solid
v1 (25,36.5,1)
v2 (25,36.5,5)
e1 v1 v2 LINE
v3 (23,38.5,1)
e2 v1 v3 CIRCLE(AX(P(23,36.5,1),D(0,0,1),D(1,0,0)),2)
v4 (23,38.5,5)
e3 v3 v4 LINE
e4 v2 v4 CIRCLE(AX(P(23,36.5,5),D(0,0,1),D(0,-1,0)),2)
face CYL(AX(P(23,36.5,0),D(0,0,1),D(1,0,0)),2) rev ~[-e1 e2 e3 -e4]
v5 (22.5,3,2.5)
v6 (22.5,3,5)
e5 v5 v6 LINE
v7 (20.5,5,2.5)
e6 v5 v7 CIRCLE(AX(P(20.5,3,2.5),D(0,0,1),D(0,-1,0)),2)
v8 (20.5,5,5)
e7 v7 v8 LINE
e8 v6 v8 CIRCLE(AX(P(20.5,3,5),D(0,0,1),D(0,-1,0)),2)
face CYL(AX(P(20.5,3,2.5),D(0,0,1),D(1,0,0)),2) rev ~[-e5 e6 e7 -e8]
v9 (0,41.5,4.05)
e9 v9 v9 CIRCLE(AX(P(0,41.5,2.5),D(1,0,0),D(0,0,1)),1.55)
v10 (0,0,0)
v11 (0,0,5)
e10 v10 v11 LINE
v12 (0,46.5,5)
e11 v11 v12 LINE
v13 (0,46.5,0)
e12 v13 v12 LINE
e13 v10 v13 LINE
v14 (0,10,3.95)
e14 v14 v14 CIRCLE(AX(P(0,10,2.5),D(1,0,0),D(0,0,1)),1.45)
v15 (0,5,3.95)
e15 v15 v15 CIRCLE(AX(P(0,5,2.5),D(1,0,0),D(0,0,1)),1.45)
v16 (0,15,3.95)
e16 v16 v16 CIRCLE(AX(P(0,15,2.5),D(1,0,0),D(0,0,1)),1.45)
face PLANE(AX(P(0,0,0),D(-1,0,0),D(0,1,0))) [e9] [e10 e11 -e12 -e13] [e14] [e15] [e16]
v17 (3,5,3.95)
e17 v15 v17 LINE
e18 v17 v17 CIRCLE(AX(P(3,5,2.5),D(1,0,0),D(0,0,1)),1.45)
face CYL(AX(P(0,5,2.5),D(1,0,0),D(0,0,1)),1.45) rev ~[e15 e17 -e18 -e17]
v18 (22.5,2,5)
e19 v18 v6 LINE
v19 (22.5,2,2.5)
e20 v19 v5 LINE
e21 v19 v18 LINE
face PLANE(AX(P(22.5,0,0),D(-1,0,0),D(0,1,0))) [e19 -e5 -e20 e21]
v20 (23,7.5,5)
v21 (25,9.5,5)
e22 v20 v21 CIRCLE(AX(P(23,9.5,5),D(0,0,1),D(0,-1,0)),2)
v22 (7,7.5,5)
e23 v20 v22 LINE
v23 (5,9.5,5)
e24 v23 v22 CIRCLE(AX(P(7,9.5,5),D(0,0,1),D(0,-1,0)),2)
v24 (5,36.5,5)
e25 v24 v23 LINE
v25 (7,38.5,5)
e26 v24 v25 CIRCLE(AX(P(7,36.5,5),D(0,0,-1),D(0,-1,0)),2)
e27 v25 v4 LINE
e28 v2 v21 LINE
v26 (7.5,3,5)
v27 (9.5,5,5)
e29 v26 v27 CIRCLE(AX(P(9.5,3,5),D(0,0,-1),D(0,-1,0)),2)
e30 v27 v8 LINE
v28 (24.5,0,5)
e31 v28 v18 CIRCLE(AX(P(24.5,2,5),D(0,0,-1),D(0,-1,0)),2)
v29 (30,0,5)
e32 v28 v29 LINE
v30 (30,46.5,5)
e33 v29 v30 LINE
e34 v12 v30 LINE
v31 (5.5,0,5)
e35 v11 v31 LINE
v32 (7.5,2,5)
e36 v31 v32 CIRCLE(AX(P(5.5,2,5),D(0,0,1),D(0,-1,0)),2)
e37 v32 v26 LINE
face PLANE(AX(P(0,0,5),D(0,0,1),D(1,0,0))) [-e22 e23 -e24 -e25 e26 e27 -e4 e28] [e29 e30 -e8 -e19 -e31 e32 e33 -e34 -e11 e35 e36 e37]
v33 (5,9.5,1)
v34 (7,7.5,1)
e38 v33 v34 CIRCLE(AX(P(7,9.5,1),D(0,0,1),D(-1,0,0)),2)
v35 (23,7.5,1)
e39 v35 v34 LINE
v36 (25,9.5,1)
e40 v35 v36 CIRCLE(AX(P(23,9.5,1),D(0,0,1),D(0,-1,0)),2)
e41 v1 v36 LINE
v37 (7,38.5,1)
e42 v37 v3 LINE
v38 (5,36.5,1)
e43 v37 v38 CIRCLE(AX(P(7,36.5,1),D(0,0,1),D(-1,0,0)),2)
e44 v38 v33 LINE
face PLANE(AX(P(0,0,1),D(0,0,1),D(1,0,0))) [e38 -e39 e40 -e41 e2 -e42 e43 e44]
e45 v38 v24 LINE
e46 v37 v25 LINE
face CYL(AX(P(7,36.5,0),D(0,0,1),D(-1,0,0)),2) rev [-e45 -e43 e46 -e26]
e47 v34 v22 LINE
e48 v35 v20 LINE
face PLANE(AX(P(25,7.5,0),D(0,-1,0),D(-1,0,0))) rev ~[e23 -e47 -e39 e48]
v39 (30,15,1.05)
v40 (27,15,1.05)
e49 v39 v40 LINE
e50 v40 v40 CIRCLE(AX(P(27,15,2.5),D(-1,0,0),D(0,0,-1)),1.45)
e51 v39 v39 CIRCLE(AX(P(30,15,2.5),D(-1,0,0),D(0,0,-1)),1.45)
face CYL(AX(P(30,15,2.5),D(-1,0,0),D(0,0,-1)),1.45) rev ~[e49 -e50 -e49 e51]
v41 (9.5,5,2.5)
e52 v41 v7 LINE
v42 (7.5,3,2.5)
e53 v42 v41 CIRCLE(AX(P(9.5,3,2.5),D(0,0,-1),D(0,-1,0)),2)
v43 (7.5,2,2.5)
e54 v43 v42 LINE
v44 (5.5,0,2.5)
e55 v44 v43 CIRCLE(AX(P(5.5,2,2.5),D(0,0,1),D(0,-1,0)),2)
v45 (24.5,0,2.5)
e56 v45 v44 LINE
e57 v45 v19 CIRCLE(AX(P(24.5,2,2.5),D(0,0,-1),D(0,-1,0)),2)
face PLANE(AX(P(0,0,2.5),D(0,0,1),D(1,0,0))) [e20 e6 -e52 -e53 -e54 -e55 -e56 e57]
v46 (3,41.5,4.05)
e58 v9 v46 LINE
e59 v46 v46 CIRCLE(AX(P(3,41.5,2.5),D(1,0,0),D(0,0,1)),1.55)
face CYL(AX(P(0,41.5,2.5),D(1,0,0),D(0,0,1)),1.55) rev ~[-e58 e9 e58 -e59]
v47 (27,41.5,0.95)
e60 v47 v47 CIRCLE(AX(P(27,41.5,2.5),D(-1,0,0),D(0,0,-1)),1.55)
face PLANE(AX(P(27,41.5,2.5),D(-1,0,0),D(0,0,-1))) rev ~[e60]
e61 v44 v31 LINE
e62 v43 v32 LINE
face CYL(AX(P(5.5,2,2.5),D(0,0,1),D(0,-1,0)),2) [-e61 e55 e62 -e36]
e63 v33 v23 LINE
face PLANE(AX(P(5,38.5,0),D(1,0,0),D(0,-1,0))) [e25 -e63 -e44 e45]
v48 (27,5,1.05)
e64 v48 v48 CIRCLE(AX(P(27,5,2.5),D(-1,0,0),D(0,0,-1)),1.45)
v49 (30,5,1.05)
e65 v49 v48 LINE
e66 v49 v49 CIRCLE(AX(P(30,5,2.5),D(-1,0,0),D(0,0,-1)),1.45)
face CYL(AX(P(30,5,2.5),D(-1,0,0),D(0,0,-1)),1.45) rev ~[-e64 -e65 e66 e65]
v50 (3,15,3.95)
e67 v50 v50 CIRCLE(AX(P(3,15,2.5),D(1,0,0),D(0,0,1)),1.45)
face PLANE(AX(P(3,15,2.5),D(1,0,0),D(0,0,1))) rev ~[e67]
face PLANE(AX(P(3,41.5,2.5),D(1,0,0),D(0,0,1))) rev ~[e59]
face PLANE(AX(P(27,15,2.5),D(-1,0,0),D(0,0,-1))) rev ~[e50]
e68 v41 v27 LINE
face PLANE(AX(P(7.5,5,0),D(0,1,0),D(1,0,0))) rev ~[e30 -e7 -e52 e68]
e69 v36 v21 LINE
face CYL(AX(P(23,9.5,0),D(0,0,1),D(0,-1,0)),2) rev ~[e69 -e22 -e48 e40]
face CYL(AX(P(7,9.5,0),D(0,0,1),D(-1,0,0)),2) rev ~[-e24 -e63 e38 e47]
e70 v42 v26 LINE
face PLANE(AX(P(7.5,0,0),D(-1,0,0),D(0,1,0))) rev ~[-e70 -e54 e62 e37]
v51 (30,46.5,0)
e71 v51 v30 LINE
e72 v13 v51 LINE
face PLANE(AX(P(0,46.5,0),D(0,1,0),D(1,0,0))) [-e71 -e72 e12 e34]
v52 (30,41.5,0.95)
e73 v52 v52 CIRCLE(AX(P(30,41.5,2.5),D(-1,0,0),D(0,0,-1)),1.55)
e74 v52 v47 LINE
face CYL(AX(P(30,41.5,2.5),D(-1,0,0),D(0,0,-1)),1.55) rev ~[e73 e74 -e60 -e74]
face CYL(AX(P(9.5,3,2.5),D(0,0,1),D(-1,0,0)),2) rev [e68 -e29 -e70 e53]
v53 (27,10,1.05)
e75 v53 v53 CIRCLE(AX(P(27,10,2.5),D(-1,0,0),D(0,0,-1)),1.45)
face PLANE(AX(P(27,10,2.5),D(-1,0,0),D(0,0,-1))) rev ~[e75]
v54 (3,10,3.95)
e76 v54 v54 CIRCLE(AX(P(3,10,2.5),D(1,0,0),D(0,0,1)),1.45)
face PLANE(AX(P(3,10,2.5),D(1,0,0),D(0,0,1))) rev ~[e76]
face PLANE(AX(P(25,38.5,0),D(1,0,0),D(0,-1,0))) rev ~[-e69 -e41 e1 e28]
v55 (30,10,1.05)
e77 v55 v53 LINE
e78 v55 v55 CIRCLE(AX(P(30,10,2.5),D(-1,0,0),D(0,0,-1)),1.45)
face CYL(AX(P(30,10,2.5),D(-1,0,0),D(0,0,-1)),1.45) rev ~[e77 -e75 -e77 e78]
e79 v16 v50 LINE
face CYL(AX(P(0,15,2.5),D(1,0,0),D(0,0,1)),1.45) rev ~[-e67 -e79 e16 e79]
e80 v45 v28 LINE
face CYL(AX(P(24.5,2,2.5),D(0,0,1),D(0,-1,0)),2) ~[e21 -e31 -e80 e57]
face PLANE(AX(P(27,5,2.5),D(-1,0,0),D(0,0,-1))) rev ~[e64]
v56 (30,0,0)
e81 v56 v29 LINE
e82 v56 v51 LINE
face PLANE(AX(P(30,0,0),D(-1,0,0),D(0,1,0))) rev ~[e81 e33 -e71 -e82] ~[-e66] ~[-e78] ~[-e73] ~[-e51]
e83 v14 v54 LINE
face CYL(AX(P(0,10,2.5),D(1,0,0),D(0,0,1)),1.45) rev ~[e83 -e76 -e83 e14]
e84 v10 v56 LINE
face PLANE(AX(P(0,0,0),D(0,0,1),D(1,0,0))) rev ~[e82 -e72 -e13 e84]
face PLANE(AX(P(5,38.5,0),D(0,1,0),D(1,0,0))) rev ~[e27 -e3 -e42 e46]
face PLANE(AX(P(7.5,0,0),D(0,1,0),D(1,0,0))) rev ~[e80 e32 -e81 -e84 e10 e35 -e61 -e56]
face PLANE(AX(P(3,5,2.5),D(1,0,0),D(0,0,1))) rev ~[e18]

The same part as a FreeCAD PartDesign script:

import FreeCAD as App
import Part
import Sketcher
from FreeCAD import Vector


def edges_at(feature, points):
    """Names of the edges that pass closest to the given points."""
    edges = feature.Shape.Edges
    near = lambda p: min(range(len(edges)), key=lambda i: edges[i].distToShape(Part.Vertex(*p))[0])
    return sorted({f"Edge{near(p) + 1}" for p in points})

doc = App.newDocument("Part")
body = doc.addObject("PartDesign::Body", "Body")

sketch1 = doc.addObject("Sketcher::SketchObject", "Sketch")
body.addObject(sketch1)
sketch1.AttachmentSupport = (doc.XY_Plane, [""])
sketch1.MapMode = "FlatFace"
sketch1.addGeometry([
    Part.LineSegment(Vector(30, 46.5, 0), Vector(0, 46.5, 0)),
    Part.LineSegment(Vector(0, 46.5, 0), Vector(0, 0, 0)),
    Part.LineSegment(Vector(0, 0, 0), Vector(7.5, 0, 0)),
    Part.LineSegment(Vector(7.5, 0, 0), Vector(7.5, 5, 0)),
    Part.LineSegment(Vector(7.5, 5, 0), Vector(22.5, 5, 0)),
    Part.LineSegment(Vector(22.5, 5, 0), Vector(22.5, 0, 0)),
    Part.LineSegment(Vector(22.5, 0, 0), Vector(30, 0, 0)),
    Part.LineSegment(Vector(30, 0, 0), Vector(30, 46.5, 0)),
    Part.LineSegment(Vector(5, 7.5, 0), Vector(5, 38.5, 0)),
    Part.LineSegment(Vector(5, 38.5, 0), Vector(25, 38.5, 0)),
    Part.LineSegment(Vector(25, 38.5, 0), Vector(25, 7.5, 0)),
    Part.LineSegment(Vector(25, 7.5, 0), Vector(5, 7.5, 0)),
], False)
sketch1.addConstraint([
    Sketcher.Constraint("Coincident", 0, 2, 1, 1),
    Sketcher.Constraint("Coincident", 1, 2, 2, 1),
    Sketcher.Constraint("Coincident", 2, 2, 3, 1),
    Sketcher.Constraint("Coincident", 3, 2, 4, 1),
    Sketcher.Constraint("Coincident", 4, 2, 5, 1),
    Sketcher.Constraint("Coincident", 5, 2, 6, 1),
    Sketcher.Constraint("Coincident", 6, 2, 7, 1),
    Sketcher.Constraint("Coincident", 7, 2, 0, 1),
    Sketcher.Constraint("Coincident", 8, 2, 9, 1),
    Sketcher.Constraint("Coincident", 9, 2, 10, 1),
    Sketcher.Constraint("Coincident", 10, 2, 11, 1),
    Sketcher.Constraint("Coincident", 11, 2, 8, 1),
    Sketcher.Constraint("Horizontal", 0),
    Sketcher.Constraint("Vertical", 1),
    Sketcher.Constraint("Horizontal", 2),
    Sketcher.Constraint("Vertical", 3),
    Sketcher.Constraint("Horizontal", 4),
    Sketcher.Constraint("Vertical", 5),
    Sketcher.Constraint("Horizontal", 6),
    Sketcher.Constraint("Vertical", 7),
    Sketcher.Constraint("Vertical", 8),
    Sketcher.Constraint("Horizontal", 9),
    Sketcher.Constraint("Vertical", 10),
    Sketcher.Constraint("Horizontal", 11),
    Sketcher.Constraint("Coincident", 1, 2, -1, 1),
    Sketcher.Constraint("PointOnObject", 5, 2, -1),
    Sketcher.Constraint("Equal", 2, 6),
    Sketcher.Constraint("DistanceX", 0, 2, 0, 1, 30.0),
    Sketcher.Constraint("DistanceX", 4, 1, 4, 2, 15.0),
    Sketcher.Constraint("DistanceY", 3, 1, 3, 2, 5.0),
    Sketcher.Constraint("DistanceY", 1, 2, 1, 1, 46.5),
    Sketcher.Constraint("DistanceX", -1, 1, 8, 2, 5.0),
    Sketcher.Constraint("DistanceY", 8, 2, 0, 2, 8.0),
    Sketcher.Constraint("DistanceX", 9, 2, 7, 2, 5.0),
    Sketcher.Constraint("DistanceY", 4, 2, 10, 2, 2.5),
])
pad1 = doc.addObject("PartDesign::Pad", "Pad")
body.addObject(pad1)
pad1.Profile = sketch1
pad1.Length = 5

sketch2 = doc.addObject("Sketcher::SketchObject", "Sketch001")
body.addObject(sketch2)
sketch2.AttachmentSupport = (doc.YZ_Plane, [""])
sketch2.MapMode = "FlatFace"
sketch2.AttachmentOffset = App.Placement(Vector(0, 0, 30), App.Rotation())
sketch2.addGeometry(Part.Circle(Vector(41.5, 2.5, 0), Vector(0, 0, 1), 1.55), False)
sketch2.addConstraint([
    Sketcher.Constraint("Diameter", 0, 3.1),
    Sketcher.Constraint("DistanceX", -1, 1, 0, 3, 41.5),
    Sketcher.Constraint("DistanceY", -1, 1, 0, 3, 2.5),
])
doc.recompute()
hole = doc.addObject("PartDesign::Hole", "Hole")
body.addObject(hole)
hole.Profile = sketch2
hole.ThreadType = "None"
hole.Diameter = 3.1
hole.DepthType = "Dimension"
hole.Depth = 3
hole.DrillPoint = "Flat"

sketch3 = doc.addObject("Sketcher::SketchObject", "Sketch002")
body.addObject(sketch3)
sketch3.AttachmentSupport = (doc.YZ_Plane, [""])
sketch3.MapMode = "FlatFace"
sketch3.addGeometry(Part.Circle(Vector(41.5, 2.5, 0), Vector(0, 0, 1), 1.55), False)
sketch3.addConstraint([
    Sketcher.Constraint("Diameter", 0, 3.1),
    Sketcher.Constraint("DistanceX", -1, 1, 0, 3, 41.5),
    Sketcher.Constraint("DistanceY", -1, 1, 0, 3, 2.5),
])
doc.recompute()
hole2 = doc.addObject("PartDesign::Hole", "Hole001")
body.addObject(hole2)
hole2.Profile = sketch3
hole2.ThreadType = "None"
hole2.Diameter = 3.1
hole2.DepthType = "Dimension"
hole2.Depth = 3
hole2.DrillPoint = "Flat"
hole2.Reversed = True

sketch4 = doc.addObject("Sketcher::SketchObject", "Sketch003")
body.addObject(sketch4)
sketch4.AttachmentSupport = (doc.YZ_Plane, [""])
sketch4.MapMode = "FlatFace"
sketch4.AttachmentOffset = App.Placement(Vector(0, 0, 30), App.Rotation())
sketch4.addGeometry([
    Part.Circle(Vector(5, 2.5, 0), Vector(0, 0, 1), 1.45),
    Part.Circle(Vector(15, 2.5, 0), Vector(0, 0, 1), 1.45),
    Part.Circle(Vector(10, 2.5, 0), Vector(0, 0, 1), 1.45),
], False)
sketch4.addConstraint([
    Sketcher.Constraint("Equal", 0, 1),
    Sketcher.Constraint("Equal", 1, 2),
    Sketcher.Constraint("Horizontal", 0, 3, 1, 3),
    Sketcher.Constraint("Horizontal", 1, 3, 2, 3),
    Sketcher.Constraint("Diameter", 0, 2.9),
    Sketcher.Constraint("DistanceX", -1, 1, 0, 3, 5.0),
    Sketcher.Constraint("DistanceX", -1, 1, 1, 3, 15.0),
    Sketcher.Constraint("DistanceX", -1, 1, 2, 3, 10.0),
    Sketcher.Constraint("DistanceY", -1, 1, 0, 3, 2.5),
])
doc.recompute()
hole3 = doc.addObject("PartDesign::Hole", "Hole002")
body.addObject(hole3)
hole3.Profile = sketch4
hole3.ThreadType = "None"
hole3.Diameter = 2.9
hole3.DepthType = "Dimension"
hole3.Depth = 3
hole3.DrillPoint = "Flat"

sketch5 = doc.addObject("Sketcher::SketchObject", "Sketch004")
body.addObject(sketch5)
sketch5.AttachmentSupport = (doc.YZ_Plane, [""])
sketch5.MapMode = "FlatFace"
sketch5.addGeometry([
    Part.Circle(Vector(5, 2.5, 0), Vector(0, 0, 1), 1.45),
    Part.Circle(Vector(10, 2.5, 0), Vector(0, 0, 1), 1.45),
    Part.Circle(Vector(15, 2.5, 0), Vector(0, 0, 1), 1.45),
], False)
sketch5.addConstraint([
    Sketcher.Constraint("Equal", 0, 1),
    Sketcher.Constraint("Equal", 1, 2),
    Sketcher.Constraint("Horizontal", 0, 3, 1, 3),
    Sketcher.Constraint("Horizontal", 1, 3, 2, 3),
    Sketcher.Constraint("Diameter", 0, 2.9),
    Sketcher.Constraint("DistanceX", -1, 1, 0, 3, 5.0),
    Sketcher.Constraint("DistanceX", -1, 1, 1, 3, 10.0),
    Sketcher.Constraint("DistanceX", -1, 1, 2, 3, 15.0),
    Sketcher.Constraint("DistanceY", -1, 1, 0, 3, 2.5),
])
doc.recompute()
hole4 = doc.addObject("PartDesign::Hole", "Hole003")
body.addObject(hole4)
hole4.Profile = sketch5
hole4.ThreadType = "None"
hole4.Diameter = 2.9
hole4.DepthType = "Dimension"
hole4.Depth = 3
hole4.DrillPoint = "Flat"
hole4.Reversed = True

sketch6 = doc.addObject("Sketcher::SketchObject", "Sketch005")
body.addObject(sketch6)
sketch6.AttachmentSupport = (doc.XY_Plane, [""])
sketch6.MapMode = "FlatFace"
sketch6.addGeometry([
    Part.LineSegment(Vector(7.5, 5, 0), Vector(7.5, 0, 0)),
    Part.LineSegment(Vector(7.5, 0, 0), Vector(22.5, 0, 0)),
    Part.LineSegment(Vector(22.5, 0, 0), Vector(22.5, 5, 0)),
    Part.LineSegment(Vector(22.5, 5, 0), Vector(7.5, 5, 0)),
], False)
sketch6.addConstraint([
    Sketcher.Constraint("Coincident", 0, 2, 1, 1),
    Sketcher.Constraint("Coincident", 1, 2, 2, 1),
    Sketcher.Constraint("Coincident", 2, 2, 3, 1),
    Sketcher.Constraint("Coincident", 3, 2, 0, 1),
    Sketcher.Constraint("Vertical", 0),
    Sketcher.Constraint("Horizontal", 1),
    Sketcher.Constraint("Vertical", 2),
    Sketcher.Constraint("Horizontal", 3),
    Sketcher.Constraint("PointOnObject", 0, 2, -1),
    Sketcher.Constraint("DistanceX", 1, 1, 1, 2, 15.0),
    Sketcher.Constraint("DistanceY", 0, 2, 0, 1, 5.0),
    Sketcher.Constraint("DistanceX", -1, 1, 0, 2, 7.5),
])
pad2 = doc.addObject("PartDesign::Pad", "Pad001")
body.addObject(pad2)
pad2.Profile = sketch6
pad2.Length = 2.5
doc.recompute()

fillet = doc.addObject("PartDesign::Fillet", "Fillet")
body.addObject(fillet)
fillet.Base = (pad2, edges_at(pad2, [
    (7.5, 5, 3.75),
    (7.5, 0, 3.75),
    (22.5, 5, 3.75),
    (22.5, 0, 3.75),
    (5, 38.5, 2.5),
    (25, 38.5, 2.5),
    (5, 7.5, 2.5),
    (25, 7.5, 2.5),
]))
fillet.Radius = 2

sketch7 = doc.addObject("Sketcher::SketchObject", "Sketch006")
body.addObject(sketch7)
sketch7.AttachmentSupport = (doc.XY_Plane, [""])
sketch7.MapMode = "FlatFace"
sketch7.addGeometry([
    Part.LineSegment(Vector(25, 38.5, 0), Vector(5, 38.5, 0)),
    Part.LineSegment(Vector(5, 38.5, 0), Vector(5, 7.5, 0)),
    Part.LineSegment(Vector(5, 7.5, 0), Vector(25, 7.5, 0)),
    Part.LineSegment(Vector(25, 7.5, 0), Vector(25, 38.5, 0)),
], False)
sketch7.addConstraint([
    Sketcher.Constraint("Coincident", 0, 2, 1, 1),
    Sketcher.Constraint("Coincident", 1, 2, 2, 1),
    Sketcher.Constraint("Coincident", 2, 2, 3, 1),
    Sketcher.Constraint("Coincident", 3, 2, 0, 1),
    Sketcher.Constraint("Horizontal", 0),
    Sketcher.Constraint("Vertical", 1),
    Sketcher.Constraint("Horizontal", 2),
    Sketcher.Constraint("Vertical", 3),
    Sketcher.Constraint("DistanceX", -1, 1, 0, 2, 5.0),
    Sketcher.Constraint("DistanceX", 0, 2, 0, 1, 20.0),
    Sketcher.Constraint("DistanceY", 1, 2, 1, 1, 31.0),
    Sketcher.Constraint("DistanceY", -1, 1, 0, 2, 38.5),
])
pad3 = doc.addObject("PartDesign::Pad", "Pad002")
body.addObject(pad3)
pad3.Profile = sketch7
pad3.Length = 1

doc.recompute()
